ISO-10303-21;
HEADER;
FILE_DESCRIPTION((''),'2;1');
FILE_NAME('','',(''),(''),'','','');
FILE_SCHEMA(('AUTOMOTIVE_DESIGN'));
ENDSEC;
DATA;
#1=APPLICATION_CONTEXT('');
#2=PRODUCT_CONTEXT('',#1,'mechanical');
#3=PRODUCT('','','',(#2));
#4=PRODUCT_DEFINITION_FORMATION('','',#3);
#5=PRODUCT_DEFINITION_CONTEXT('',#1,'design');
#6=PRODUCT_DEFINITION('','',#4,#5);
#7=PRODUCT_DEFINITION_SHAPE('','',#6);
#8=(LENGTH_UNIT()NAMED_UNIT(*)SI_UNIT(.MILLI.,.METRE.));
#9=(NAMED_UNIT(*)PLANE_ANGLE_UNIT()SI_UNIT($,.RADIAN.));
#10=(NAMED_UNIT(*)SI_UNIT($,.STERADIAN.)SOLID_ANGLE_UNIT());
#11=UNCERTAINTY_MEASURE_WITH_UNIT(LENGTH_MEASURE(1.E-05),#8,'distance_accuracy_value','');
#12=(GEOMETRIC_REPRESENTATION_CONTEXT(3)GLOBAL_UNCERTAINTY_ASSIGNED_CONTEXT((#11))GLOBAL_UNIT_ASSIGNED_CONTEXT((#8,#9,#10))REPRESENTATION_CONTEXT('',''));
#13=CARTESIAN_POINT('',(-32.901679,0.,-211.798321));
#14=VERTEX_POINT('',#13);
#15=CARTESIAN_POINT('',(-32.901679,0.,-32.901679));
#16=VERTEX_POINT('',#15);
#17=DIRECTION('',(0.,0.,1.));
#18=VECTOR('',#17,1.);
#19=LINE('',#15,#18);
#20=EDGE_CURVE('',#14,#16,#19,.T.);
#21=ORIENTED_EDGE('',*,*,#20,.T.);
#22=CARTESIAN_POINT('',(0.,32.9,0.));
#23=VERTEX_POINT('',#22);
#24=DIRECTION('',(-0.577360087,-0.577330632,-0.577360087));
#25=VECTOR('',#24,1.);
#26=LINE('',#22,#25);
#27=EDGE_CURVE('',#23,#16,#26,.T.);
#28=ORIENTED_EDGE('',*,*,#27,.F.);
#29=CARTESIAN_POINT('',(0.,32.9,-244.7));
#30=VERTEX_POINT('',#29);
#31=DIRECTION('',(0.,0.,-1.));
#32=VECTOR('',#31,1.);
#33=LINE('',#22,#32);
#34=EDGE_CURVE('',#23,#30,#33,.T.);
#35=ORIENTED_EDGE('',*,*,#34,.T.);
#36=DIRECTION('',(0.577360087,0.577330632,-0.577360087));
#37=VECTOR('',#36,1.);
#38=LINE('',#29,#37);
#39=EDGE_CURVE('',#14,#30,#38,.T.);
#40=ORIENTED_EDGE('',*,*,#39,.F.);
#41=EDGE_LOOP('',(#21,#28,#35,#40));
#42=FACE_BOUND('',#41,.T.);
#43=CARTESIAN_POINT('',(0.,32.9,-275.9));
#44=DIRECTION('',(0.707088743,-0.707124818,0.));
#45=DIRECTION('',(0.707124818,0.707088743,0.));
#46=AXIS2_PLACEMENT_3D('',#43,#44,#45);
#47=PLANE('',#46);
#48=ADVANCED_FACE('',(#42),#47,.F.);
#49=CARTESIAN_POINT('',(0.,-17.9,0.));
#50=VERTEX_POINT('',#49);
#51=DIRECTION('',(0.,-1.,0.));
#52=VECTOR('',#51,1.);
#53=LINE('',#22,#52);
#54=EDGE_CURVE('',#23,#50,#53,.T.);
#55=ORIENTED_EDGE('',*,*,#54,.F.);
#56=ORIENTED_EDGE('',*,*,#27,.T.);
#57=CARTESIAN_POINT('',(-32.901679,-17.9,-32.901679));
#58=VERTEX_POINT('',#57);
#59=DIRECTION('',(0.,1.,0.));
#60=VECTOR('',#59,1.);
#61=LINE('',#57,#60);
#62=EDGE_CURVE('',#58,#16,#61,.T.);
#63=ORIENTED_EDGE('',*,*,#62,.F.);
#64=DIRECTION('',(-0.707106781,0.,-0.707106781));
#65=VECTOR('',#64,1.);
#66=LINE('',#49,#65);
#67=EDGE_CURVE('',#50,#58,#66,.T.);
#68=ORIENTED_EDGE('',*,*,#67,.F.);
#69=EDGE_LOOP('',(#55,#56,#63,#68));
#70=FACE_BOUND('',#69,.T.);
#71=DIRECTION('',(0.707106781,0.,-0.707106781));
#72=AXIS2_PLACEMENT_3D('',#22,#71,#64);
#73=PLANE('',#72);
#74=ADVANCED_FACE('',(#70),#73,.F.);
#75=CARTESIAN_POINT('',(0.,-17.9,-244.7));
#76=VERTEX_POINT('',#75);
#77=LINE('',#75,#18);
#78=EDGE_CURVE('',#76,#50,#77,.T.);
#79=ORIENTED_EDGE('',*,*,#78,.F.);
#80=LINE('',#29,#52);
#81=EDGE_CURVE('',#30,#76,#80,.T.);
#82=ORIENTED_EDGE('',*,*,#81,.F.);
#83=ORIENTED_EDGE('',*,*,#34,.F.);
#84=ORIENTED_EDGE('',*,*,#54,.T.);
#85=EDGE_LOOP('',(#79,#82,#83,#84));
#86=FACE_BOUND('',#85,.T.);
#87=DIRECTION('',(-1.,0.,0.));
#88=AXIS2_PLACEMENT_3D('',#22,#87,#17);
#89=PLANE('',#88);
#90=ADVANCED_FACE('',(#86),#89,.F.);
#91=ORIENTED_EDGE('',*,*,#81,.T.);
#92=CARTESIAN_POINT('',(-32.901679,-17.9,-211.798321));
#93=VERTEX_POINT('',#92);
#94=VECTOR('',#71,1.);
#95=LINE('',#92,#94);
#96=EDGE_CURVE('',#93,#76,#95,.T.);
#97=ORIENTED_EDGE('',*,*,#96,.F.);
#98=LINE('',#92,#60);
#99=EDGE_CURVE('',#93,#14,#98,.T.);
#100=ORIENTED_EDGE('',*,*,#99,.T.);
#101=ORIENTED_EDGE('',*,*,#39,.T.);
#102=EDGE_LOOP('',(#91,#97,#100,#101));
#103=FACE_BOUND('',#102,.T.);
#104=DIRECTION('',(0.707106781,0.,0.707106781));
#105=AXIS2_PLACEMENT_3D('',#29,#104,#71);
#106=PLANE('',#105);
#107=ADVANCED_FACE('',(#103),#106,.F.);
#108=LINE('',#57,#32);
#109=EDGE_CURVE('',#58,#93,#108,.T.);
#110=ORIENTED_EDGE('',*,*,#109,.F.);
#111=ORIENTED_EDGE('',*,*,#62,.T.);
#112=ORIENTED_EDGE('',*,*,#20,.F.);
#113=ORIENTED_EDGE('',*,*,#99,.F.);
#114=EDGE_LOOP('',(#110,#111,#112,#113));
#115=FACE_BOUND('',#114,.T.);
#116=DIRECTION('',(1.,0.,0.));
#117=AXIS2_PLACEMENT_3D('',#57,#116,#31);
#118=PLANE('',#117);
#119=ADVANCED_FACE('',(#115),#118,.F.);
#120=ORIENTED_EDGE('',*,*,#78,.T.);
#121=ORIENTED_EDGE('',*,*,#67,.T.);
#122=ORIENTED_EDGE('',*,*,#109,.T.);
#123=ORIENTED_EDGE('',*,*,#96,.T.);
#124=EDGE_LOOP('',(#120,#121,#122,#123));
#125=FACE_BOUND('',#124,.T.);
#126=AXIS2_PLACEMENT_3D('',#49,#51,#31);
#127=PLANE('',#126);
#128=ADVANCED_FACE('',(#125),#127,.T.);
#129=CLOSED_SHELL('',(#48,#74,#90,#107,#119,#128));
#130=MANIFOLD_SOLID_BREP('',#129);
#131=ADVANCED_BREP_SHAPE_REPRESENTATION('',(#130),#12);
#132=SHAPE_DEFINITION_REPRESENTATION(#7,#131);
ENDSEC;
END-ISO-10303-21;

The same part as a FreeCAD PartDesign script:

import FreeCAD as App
import Part
import Sketcher

V = App.Vector
Q = App.Units.Quantity


def add_polygon(sketch, points):
    """Adds a closed chain of lines whose ends are joined by coincident constraints."""
    first, n = sketch.GeometryCount, len(points)
    for a, b in zip(points, points[1:] + points[:1]):
        sketch.addGeometry(Part.LineSegment(App.Vector(*a, 0), App.Vector(*b, 0)), False)
    for i in range(n):
        sketch.addConstraint(Sketcher.Constraint("Coincident", first + i, 2, first + (i + 1) % n, 1))

doc = App.newDocument("Part")
params = doc.addObject("Spreadsheet::Sheet", "Params")
for row, (alias, value) in enumerate([
    ("sketch1_height", "244.7 mm"),
    ("sketch1_length", "46.53 mm"),
    ("pad1_length", "32.9 mm"),
    ("sketch2_height", "32.9 mm"),
    ("pocket1_length", "275.9 mm"),
    ("sketch3_height", "244.7 mm"),
    ("sketch3_length", "46.53 mm"),
    ("pad2_length", "17.9 mm"),
], start=1):
    params.set(f"A{row}", alias)
    params.set(f"B{row}", "=" + value)
    params.setAlias(f"B{row}", alias)

body = doc.addObject("PartDesign::Body", "Body")

# Sketch on XZ plane
sketch1 = body.newObject("Sketcher::SketchObject", "Sketch")
sketch1.AttachmentSupport = (doc.getObject("XZ_Plane"), [""])
sketch1.MapMode = "FlatFace"
add_polygon(sketch1, [(0, -245), (-33, -212), (-33, -33), (0, 0)])  # lines 0-3
sketch1.addConstraint(Sketcher.Constraint("Vertical", 1))
sketch1.addConstraint(Sketcher.Constraint("Vertical", 3))
sketch1.addConstraint(Sketcher.Constraint("Coincident", 2, 2, -1, 1))
sketch1.addConstraint(Sketcher.Constraint("Perpendicular", 0, 2))
sketch1.addConstraint(Sketcher.Constraint("Equal", 0, 2))
sketch1.addConstraint(Sketcher.Constraint("DistanceY", 3, 2, 3, 1, Q("244.7 mm")))
sketch1.addConstraint(Sketcher.Constraint("Distance", 0, Q("46.53 mm")))
sketch1.setExpression("Constraints[9]", "Params.sketch1_height")
sketch1.setExpression("Constraints[10]", "Params.sketch1_length")
pad1 = body.newObject("PartDesign::Pad", "Pad")
pad1.Profile = sketch1
pad1.setExpression("Length", "Params.pad1_length")
pad1.Reversed = True

# Sketch on XY plane
sketch2 = body.newObject("Sketcher::SketchObject", "Sketch001")
sketch2.AttachmentSupport = (doc.getObject("XY_Plane"), [""])
sketch2.MapMode = "FlatFace"
add_polygon(sketch2, [(-33, 0), (0, 33), (-33, 33)])  # lines 0-2
sketch2.addConstraint(Sketcher.Constraint("Horizontal", 1))
sketch2.addConstraint(Sketcher.Constraint("Vertical", 2))
sketch2.addConstraint(Sketcher.Constraint("PointOnObject", 0, 2, -2))
sketch2.addConstraint(Sketcher.Constraint("PointOnObject", 2, 2, -1))
sketch2.addConstraint(Sketcher.Constraint("DistanceY", 2, 2, 2, 1, Q("32.9 mm")))
sketch2.addConstraint(Sketcher.Constraint("DistanceX", 1, 2, 1, 1, Q("32.901679 mm")))
sketch2.setExpression("Constraints[7]", "Params.sketch2_height")
pocket1 = body.newObject("PartDesign::Pocket", "Pocket")
pocket1.Profile = sketch2
pocket1.setExpression("Length", "Params.pocket1_length")

# Sketch on XZ plane
sketch3 = body.newObject("Sketcher::SketchObject", "Sketch002")
sketch3.AttachmentSupport = (doc.getObject("XZ_Plane"), [""])
sketch3.MapMode = "FlatFace"
add_polygon(sketch3, [(0, 0), (-33, -33), (-33, -212), (0, -245)])  # lines 0-3
sketch3.addConstraint(Sketcher.Constraint("Vertical", 1))
sketch3.addConstraint(Sketcher.Constraint("Vertical", 3))
sketch3.addConstraint(Sketcher.Constraint("Coincident", 3, 2, -1, 1))
sketch3.addConstraint(Sketcher.Constraint("Perpendicular", 0, 2))
sketch3.addConstraint(Sketcher.Constraint("Equal", 0, 2))
sketch3.addConstraint(Sketcher.Constraint("DistanceY", 3, 1, 3, 2, Q("244.7 mm")))
sketch3.addConstraint(Sketcher.Constraint("Distance", 0, Q("46.53 mm")))
sketch3.setExpression("Constraints[9]", "Params.sketch3_height")
sketch3.setExpression("Constraints[10]", "Params.sketch3_length")
pad2 = body.newObject("PartDesign::Pad", "Pad001")
pad2.Profile = sketch3
pad2.setExpression("Length", "Params.pad2_length")

doc.recompute()
